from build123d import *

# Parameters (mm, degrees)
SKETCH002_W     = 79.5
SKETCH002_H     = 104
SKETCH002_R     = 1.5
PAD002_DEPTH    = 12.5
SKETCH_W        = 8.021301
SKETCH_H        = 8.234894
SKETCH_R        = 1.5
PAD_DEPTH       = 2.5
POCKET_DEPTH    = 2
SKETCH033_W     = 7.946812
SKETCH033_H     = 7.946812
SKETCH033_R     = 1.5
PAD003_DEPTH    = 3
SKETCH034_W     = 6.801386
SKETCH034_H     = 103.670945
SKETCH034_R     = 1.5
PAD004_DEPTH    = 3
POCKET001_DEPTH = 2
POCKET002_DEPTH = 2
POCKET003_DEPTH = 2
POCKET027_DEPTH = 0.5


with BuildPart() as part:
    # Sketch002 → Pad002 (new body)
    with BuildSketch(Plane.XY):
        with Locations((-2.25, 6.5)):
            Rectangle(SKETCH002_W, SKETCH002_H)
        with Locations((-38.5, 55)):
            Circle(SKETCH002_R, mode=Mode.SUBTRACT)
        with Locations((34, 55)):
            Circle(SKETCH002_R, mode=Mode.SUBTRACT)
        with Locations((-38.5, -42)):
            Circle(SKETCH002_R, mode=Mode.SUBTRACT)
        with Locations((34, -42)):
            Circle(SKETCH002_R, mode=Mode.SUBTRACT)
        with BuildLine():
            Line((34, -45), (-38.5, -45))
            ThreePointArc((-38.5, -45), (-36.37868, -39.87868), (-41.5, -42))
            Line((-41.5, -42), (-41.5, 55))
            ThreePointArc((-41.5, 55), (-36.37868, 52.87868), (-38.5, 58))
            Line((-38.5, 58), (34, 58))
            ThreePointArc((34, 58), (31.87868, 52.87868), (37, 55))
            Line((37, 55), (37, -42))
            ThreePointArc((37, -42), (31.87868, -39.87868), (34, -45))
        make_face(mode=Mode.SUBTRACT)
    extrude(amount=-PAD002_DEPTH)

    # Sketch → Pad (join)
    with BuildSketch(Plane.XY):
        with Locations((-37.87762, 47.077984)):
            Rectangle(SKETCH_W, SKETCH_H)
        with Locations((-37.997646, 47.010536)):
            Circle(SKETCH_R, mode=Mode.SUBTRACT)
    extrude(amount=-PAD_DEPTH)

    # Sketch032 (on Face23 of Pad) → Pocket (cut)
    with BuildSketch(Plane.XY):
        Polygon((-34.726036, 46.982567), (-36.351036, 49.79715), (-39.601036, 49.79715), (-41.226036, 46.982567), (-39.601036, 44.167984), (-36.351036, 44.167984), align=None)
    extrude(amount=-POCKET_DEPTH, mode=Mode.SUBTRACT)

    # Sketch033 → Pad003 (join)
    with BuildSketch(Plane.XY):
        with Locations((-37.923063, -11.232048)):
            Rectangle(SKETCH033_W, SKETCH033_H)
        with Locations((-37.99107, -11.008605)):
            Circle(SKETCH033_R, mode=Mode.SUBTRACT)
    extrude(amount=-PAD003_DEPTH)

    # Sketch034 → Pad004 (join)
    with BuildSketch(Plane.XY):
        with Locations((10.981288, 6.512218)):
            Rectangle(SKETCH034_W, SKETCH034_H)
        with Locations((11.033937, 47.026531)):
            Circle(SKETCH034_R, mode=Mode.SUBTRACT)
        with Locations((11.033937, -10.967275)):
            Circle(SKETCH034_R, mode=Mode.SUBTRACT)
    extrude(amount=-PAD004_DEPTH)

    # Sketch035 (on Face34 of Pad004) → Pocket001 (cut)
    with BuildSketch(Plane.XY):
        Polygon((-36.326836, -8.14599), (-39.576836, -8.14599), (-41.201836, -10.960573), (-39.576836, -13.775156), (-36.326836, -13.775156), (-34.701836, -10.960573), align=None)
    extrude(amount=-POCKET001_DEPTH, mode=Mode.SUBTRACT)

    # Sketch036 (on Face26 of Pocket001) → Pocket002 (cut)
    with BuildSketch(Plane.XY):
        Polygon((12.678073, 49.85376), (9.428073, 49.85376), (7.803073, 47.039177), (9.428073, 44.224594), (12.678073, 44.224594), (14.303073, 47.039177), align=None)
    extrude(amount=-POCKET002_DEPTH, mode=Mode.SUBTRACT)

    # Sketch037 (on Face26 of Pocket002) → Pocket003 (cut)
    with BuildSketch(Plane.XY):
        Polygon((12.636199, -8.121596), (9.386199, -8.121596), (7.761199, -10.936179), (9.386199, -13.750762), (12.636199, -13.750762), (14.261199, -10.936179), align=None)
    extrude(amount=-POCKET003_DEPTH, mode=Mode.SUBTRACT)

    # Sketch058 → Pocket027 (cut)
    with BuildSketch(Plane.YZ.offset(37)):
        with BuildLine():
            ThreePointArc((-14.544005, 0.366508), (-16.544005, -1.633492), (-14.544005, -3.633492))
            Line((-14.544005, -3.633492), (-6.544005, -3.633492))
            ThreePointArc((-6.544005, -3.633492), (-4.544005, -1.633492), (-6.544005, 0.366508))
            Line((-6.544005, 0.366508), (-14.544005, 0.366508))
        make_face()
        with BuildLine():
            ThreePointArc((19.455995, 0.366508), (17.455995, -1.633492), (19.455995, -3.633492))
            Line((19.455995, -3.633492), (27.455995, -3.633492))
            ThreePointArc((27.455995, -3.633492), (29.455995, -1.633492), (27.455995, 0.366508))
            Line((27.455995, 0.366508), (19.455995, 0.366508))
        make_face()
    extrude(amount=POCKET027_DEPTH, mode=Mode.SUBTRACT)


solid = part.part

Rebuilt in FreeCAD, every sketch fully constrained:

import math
import FreeCAD as App
import Part
import Sketcher

V = App.Vector
Q = App.Units.Quantity


def add_polygon(sketch, points):
    """Adds a closed chain of lines whose ends are joined by coincident constraints."""
    first, n = sketch.GeometryCount, len(points)
    for a, b in zip(points, points[1:] + points[:1]):
        sketch.addGeometry(Part.LineSegment(App.Vector(*a, 0), App.Vector(*b, 0)), False)
    for i in range(n):
        sketch.addConstraint(Sketcher.Constraint("Coincident", first + i, 2, first + (i + 1) % n, 1))

doc = App.newDocument("Part")
body = doc.addObject("PartDesign::Body", "Body")

# Sketch on XY plane
sketch1 = body.newObject("Sketcher::SketchObject", "Sketch")
sketch1.AttachmentSupport = (doc.getObject("XY_Plane"), [""])
sketch1.MapMode = "FlatFace"
add_polygon(sketch1, [(-42, 58.5), (-42, -45.5), (37.5, -45.5), (37.5, 58.5)])  # lines 0-3
sketch1.addGeometry(Part.Circle(V(-38.5, -42, 0), V(0, 0, 1), 1.5), False)  # 4
sketch1.addGeometry(Part.Circle(V(34, -42, 0), V(0, 0, 1), 1.5), False)  # 5
sketch1.addGeometry(Part.ArcOfCircle(Part.Circle(V(34, -42, 0), V(0, 0, 1), 3), math.radians(0), math.radians(270)), False)  # 6
sketch1.addGeometry(Part.LineSegment(V(34, -45, 0), V(-38.5, -45, 0)), False)  # 7
sketch1.addGeometry(Part.ArcOfCircle(Part.Circle(V(-38.5, -42, 0), V(0, 0, 1), 3), math.radians(-90), math.radians(180)), False)  # 8
sketch1.addGeometry(Part.LineSegment(V(-41.5, -42, 0), V(-41.5, 55, 0)), False)  # 9
sketch1.addGeometry(Part.ArcOfCircle(Part.Circle(V(-38.5, 55, 0), V(0, 0, 1), 3), math.radians(-180), math.radians(90)), False)  # 10
sketch1.addGeometry(Part.LineSegment(V(-38.5, 58, 0), V(34, 58, 0)), False)  # 11
sketch1.addGeometry(Part.ArcOfCircle(Part.Circle(V(34, 55, 0), V(0, 0, 1), 3), math.radians(90), math.radians(360)), False)  # 12
sketch1.addGeometry(Part.LineSegment(V(37, 55, 0), V(37, -42, 0)), False)  # 13
sketch1.addGeometry(Part.Circle(V(-38.5, 55, 0), V(0, 0, 1), 1.5), False)  # 14
sketch1.addGeometry(Part.Circle(V(34, 55, 0), V(0, 0, 1), 1.5), False)  # 15
sketch1.addConstraint([
    Sketcher.Constraint("Tangent", 6, 2, 7, 1),
    Sketcher.Constraint("Tangent", 7, 2, 8, 1),
    Sketcher.Constraint("Tangent", 8, 2, 9, 1),
    Sketcher.Constraint("Tangent", 9, 2, 10, 1),
    Sketcher.Constraint("Tangent", 10, 2, 11, 1),
    Sketcher.Constraint("Tangent", 11, 2, 12, 1),
    Sketcher.Constraint("Tangent", 12, 2, 13, 1),
    Sketcher.Constraint("Tangent", 13, 2, 6, 1),
    Sketcher.Constraint("Vertical", 0),
    Sketcher.Constraint("Horizontal", 1),
    Sketcher.Constraint("Vertical", 2),
    Sketcher.Constraint("Horizontal", 3),
    Sketcher.Constraint("Horizontal", 7),
    Sketcher.Constraint("Vertical", 9),
    Sketcher.Constraint("Horizontal", 11),
    Sketcher.Constraint("Vertical", 13),
    Sketcher.Constraint("Coincident", 6, 3, 5, 3),
    Sketcher.Constraint("Coincident", 8, 3, 4, 3),
    Sketcher.Constraint("Coincident", 14, 3, 10, 3),
    Sketcher.Constraint("Coincident", 15, 3, 12, 3),
    Sketcher.Constraint("Equal", 4, 5),
    Sketcher.Constraint("Equal", 6, 8),
    Sketcher.Constraint("Equal", 8, 10),
    Sketcher.Constraint("Equal", 10, 12),
    Sketcher.Constraint("Equal", 5, 14),
    Sketcher.Constraint("Equal", 14, 15),
    Sketcher.Constraint("Diameter", 4, 3.0),
    Sketcher.Constraint("Radius", 6, 3.0),
    Sketcher.Constraint("DistanceY", 0, 2, 0, 1, 104.0),
    Sketcher.Constraint("DistanceY", 9, 1, 9, 2, 97.0),
    Sketcher.Constraint("DistanceX", 1, 1, 1, 2, 79.5),
    Sketcher.Constraint("DistanceX", 7, 2, 7, 1, 72.5),
    Sketcher.Constraint("DistanceY", 4, 3, -1, 1, 42.0),
    Sketcher.Constraint("DistanceX", -1, 1, 5, 3, 34.0),
    Sketcher.Constraint("DistanceX", 0, 2, -1, 1, 42.0),
    Sketcher.Constraint("DistanceY", 0, 2, -1, 1, 45.5),
])
pad1 = body.newObject("PartDesign::Pad", "Pad")
pad1.Profile = sketch1
pad1.Length = 12.5
pad1.Reversed = True

# Sketch on XY plane
sketch2 = body.newObject("Sketcher::SketchObject", "Sketch001")
sketch2.AttachmentSupport = (doc.getObject("XY_Plane"), [""])
sketch2.MapMode = "FlatFace"
add_polygon(sketch2, [(-41.9, 51.2), (-41.9, 43), (-33.9, 43), (-33.9, 51.2)])  # lines 0-3
sketch2.addGeometry(Part.Circle(V(-38, 47, 0), V(0, 0, 1), 1.5), False)  # 4
sketch2.addConstraint([
    Sketcher.Constraint("Vertical", 0),
    Sketcher.Constraint("Horizontal", 1),
    Sketcher.Constraint("Vertical", 2),
    Sketcher.Constraint("Horizontal", 3),
    Sketcher.Constraint("Diameter", 4, 3.0),
    Sketcher.Constraint("DistanceY", 0, 2, 4, 3, 4.049999),
    Sketcher.Constraint("DistanceX", 1, 1, 1, 2, 8.021301),
    Sketcher.Constraint("DistanceY", 0, 2, 0, 1, 8.234894),
    Sketcher.Constraint("DistanceX", 0, 2, -1, 1, 41.88827),
    Sketcher.Constraint("DistanceY", -1, 1, 2, 2, 51.195431),
    Sketcher.Constraint("DistanceX", 4, 3, -1, 1, 37.997646),
])
pad2 = body.newObject("PartDesign::Pad", "Pad001")
pad2.Profile = sketch2
pad2.Length = 2.5
pad2.Reversed = True

# Sketch on XY plane
sketch3 = body.newObject("Sketcher::SketchObject", "Sketch002")
sketch3.AttachmentSupport = (doc.getObject("XY_Plane"), [""])
sketch3.MapMode = "FlatFace"
add_polygon(sketch3, [(-34.7, 47), (-36.4, 49.8), (-39.6, 49.8), (-41.2, 47), (-39.6, 44.2), (-36.4, 44.2)])  # lines 0-5
sketch3.addConstraint([
    Sketcher.Constraint("Horizontal", 1),
    Sketcher.Constraint("Horizontal", 4),
    Sketcher.Constraint("Parallel", 0, 3),
    Sketcher.Constraint("Parallel", 2, 5),
    Sketcher.Constraint("Horizontal", 2, 2, 5, 2),
    Sketcher.Constraint("Vertical", 1, 2, 3, 2),
    Sketcher.Constraint("Vertical", 0, 2, 4, 2),
    Sketcher.Constraint("Angle", 0, Q("119.999996 deg")),
    Sketcher.Constraint("DistanceX", 1, 2, 1, 1, 3.25),
    Sketcher.Constraint("DistanceX", 2, 2, 5, 2, 6.5),
    Sketcher.Constraint("DistanceY", -1, 1, 0, 2, 49.79715),
    Sketcher.Constraint("DistanceX", 0, 2, -1, 1, 36.351036),
])
pocket1 = body.newObject("PartDesign::Pocket", "Pocket")
pocket1.Profile = sketch3
pocket1.Length = 2

# Sketch on XY plane
sketch4 = body.newObject("Sketcher::SketchObject", "Sketch003")
sketch4.AttachmentSupport = (doc.getObject("XY_Plane"), [""])
sketch4.MapMode = "FlatFace"
add_polygon(sketch4, [(-41.9, -7.3), (-41.9, -15.2), (-33.9, -15.2), (-33.9, -7.3)])  # lines 0-3
sketch4.addGeometry(Part.Circle(V(-38, -11, 0), V(0, 0, 1), 1.5), False)  # 4
sketch4.addConstraint([
    Sketcher.Constraint("Vertical", 0),
    Sketcher.Constraint("Horizontal", 1),
    Sketcher.Constraint("Vertical", 2),
    Sketcher.Constraint("Horizontal", 3),
    Sketcher.Constraint("Equal", 3, 0),
    Sketcher.Constraint("Diameter", 4, 3.0),
    Sketcher.Constraint("DistanceY", 0, 2, 0, 1, 7.946812),
    Sketcher.Constraint("DistanceX", 0, 2, 4, 3, 3.905399),
    Sketcher.Constraint("DistanceX", 4, 3, -1, 1, 37.99107),
    Sketcher.Constraint("DistanceY", 0, 2, 4, 3, 4.196849),
    Sketcher.Constraint("DistanceY", 4, 3, -1, 1, 11.008605),
])
pad3 = body.newObject("PartDesign::Pad", "Pad002")
pad3.Profile = sketch4
pad3.Length = 3
pad3.Reversed = True

# Sketch on XY plane
sketch5 = body.newObject("Sketcher::SketchObject", "Sketch004")
sketch5.AttachmentSupport = (doc.getObject("XY_Plane"), [""])
sketch5.MapMode = "FlatFace"
add_polygon(sketch5, [(7.6, 58.3), (7.6, -45.3), (14.4, -45.3), (14.4, 58.3)])  # lines 0-3
sketch5.addGeometry(Part.Circle(V(11, -11, 0), V(0, 0, 1), 1.5), False)  # 4
sketch5.addGeometry(Part.Circle(V(11, 47, 0), V(0, 0, 1), 1.5), False)  # 5
sketch5.addConstraint([
    Sketcher.Constraint("Vertical", 0),
    Sketcher.Constraint("Horizontal", 1),
    Sketcher.Constraint("Vertical", 2),
    Sketcher.Constraint("Horizontal", 3),
    Sketcher.Constraint("Equal", 4, 5),
    Sketcher.Constraint("Vertical", 4, 3, 5, 3),
    Sketcher.Constraint("Diameter", 4, 3.0),
    Sketcher.Constraint("DistanceX", 1, 1, 1, 2, 6.801386),
    Sketcher.Constraint("DistanceY", 0, 2, 0, 1, 103.670945),
    Sketcher.Constraint("DistanceY", -1, 1, 5, 3, 47.026531),
    Sketcher.Constraint("DistanceX", -1, 1, 1, 2, 14.381981),
    Sketcher.Constraint("DistanceY", -1, 1, 2, 2, 58.34769),
    Sketcher.Constraint("DistanceY", 0, 2, 4, 3, 34.355979),
    Sketcher.Constraint("DistanceX", -1, 1, 4, 3, 11.033937),
])
pad4 = body.newObject("PartDesign::Pad", "Pad003")
pad4.Profile = sketch5
pad4.Length = 3
pad4.Reversed = True

# Sketch on XY plane
sketch6 = body.newObject("Sketcher::SketchObject", "Sketch005")
sketch6.AttachmentSupport = (doc.getObject("XY_Plane"), [""])
sketch6.MapMode = "FlatFace"
add_polygon(sketch6, [(-36.3, -8.1), (-39.6, -8.1), (-41.2, -11), (-39.6, -13.8), (-36.3, -13.8), (-34.7, -11)])  # lines 0-5
sketch6.addConstraint([
    Sketcher.Constraint("Horizontal", 0),
    Sketcher.Constraint("Horizontal", 3),
    Sketcher.Constraint("Parallel", 1, 4),
    Sketcher.Constraint("Parallel", 2, 5),
    Sketcher.Constraint("Horizontal", 1, 2, 4, 2),
    Sketcher.Constraint("Vertical", 0, 2, 2, 2),
    Sketcher.Constraint("Vertical", 3, 2, 5, 2),
    Sketcher.Constraint("Angle", 1, Q("-119.999996 deg")),
    Sketcher.Constraint("DistanceX", 0, 2, 0, 1, 3.25),
    Sketcher.Constraint("DistanceX", 1, 2, 4, 2, 6.5),
    Sketcher.Constraint("DistanceY", 0, 2, -1, 1, 8.14599),
    Sketcher.Constraint("DistanceX", 0, 2, -1, 1, 39.576836),
])
pocket2 = body.newObject("PartDesign::Pocket", "Pocket001")
pocket2.Profile = sketch6
pocket2.Length = 2

# Sketch on XY plane
sketch7 = body.newObject("Sketcher::SketchObject", "Sketch006")
sketch7.AttachmentSupport = (doc.getObject("XY_Plane"), [""])
sketch7.MapMode = "FlatFace"
add_polygon(sketch7, [(12.7, 49.9), (9.4, 49.9), (7.8, 47), (9.4, 44.2), (12.7, 44.2), (14.3, 47)])  # lines 0-5
sketch7.addConstraint([
    Sketcher.Constraint("Horizontal", 0),
    Sketcher.Constraint("Horizontal", 3),
    Sketcher.Constraint("Parallel", 1, 4),
    Sketcher.Constraint("Parallel", 2, 5),
    Sketcher.Constraint("Horizontal", 1, 2, 4, 2),
    Sketcher.Constraint("Vertical", 0, 2, 2, 2),
    Sketcher.Constraint("Vertical", 3, 2, 5, 2),
    Sketcher.Constraint("Angle", 1, Q("-119.999996 deg")),
    Sketcher.Constraint("DistanceX", 0, 2, 0, 1, 3.25),
    Sketcher.Constraint("DistanceX", 1, 2, 4, 2, 6.5),
    Sketcher.Constraint("DistanceY", -1, 1, 0, 2, 49.85376),
    Sketcher.Constraint("DistanceX", -1, 1, 0, 2, 9.428073),
])
pocket3 = body.newObject("PartDesign::Pocket", "Pocket002")
pocket3.Profile = sketch7
pocket3.Length = 2

# Sketch on XY plane
sketch8 = body.newObject("Sketcher::SketchObject", "Sketch007")
sketch8.AttachmentSupport = (doc.getObject("XY_Plane"), [""])
sketch8.MapMode = "FlatFace"
add_polygon(sketch8, [(12.6, -8.1), (9.4, -8.1), (7.8, -10.9), (9.4, -13.8), (12.6, -13.8), (14.3, -10.9)])  # lines 0-5
sketch8.addConstraint([
    Sketcher.Constraint("Horizontal", 0),
    Sketcher.Constraint("Horizontal", 3),
    Sketcher.Constraint("Parallel", 1, 4),
    Sketcher.Constraint("Parallel", 2, 5),
    Sketcher.Constraint("Horizontal", 1, 2, 4, 2),
    Sketcher.Constraint("Vertical", 0, 2, 2, 2),
    Sketcher.Constraint("Vertical", 3, 2, 5, 2),
    Sketcher.Constraint("Angle", 1, Q("-119.999996 deg")),
    Sketcher.Constraint("DistanceX", 0, 2, 0, 1, 3.25),
    Sketcher.Constraint("DistanceX", 1, 2, 4, 2, 6.5),
    Sketcher.Constraint("DistanceX", -1, 1, 0, 2, 9.386199),
    Sketcher.Constraint("DistanceY", 1, 2, -1, 1, 10.936179),
])
pocket4 = body.newObject("PartDesign::Pocket", "Pocket003")
pocket4.Profile = sketch8
pocket4.Length = 2

# Sketch on YZ plane
sketch9 = body.newObject("Sketcher::SketchObject", "Sketch008")
sketch9.AttachmentSupport = (doc.getObject("YZ_Plane"), [""])
sketch9.MapMode = "FlatFace"
sketch9.AttachmentOffset = App.Placement(V(0, 0, 37), App.Rotation())
sketch9.addGeometry([
    Part.ArcOfCircle(Part.Circle(V(-14.5, -1.6, 0), V(0, 0, 1), 2), math.radians(90), math.radians(270)),  # 0
    Part.LineSegment(V(-14.5, -3.6, 0), V(-6.5, -3.6, 0)),  # 1
    Part.ArcOfCircle(Part.Circle(V(-6.5, -1.6, 0), V(0, 0, 1), 2), math.radians(-90), math.radians(90)),  # 2
    Part.LineSegment(V(-6.5, 0.4, 0), V(-14.5, 0.4, 0)),  # 3
    Part.ArcOfCircle(Part.Circle(V(19.5, -1.6, 0), V(0, 0, 1), 2), math.radians(90), math.radians(270)),  # 4
    Part.LineSegment(V(19.5, -3.6, 0), V(27.5, -3.6, 0)),  # 5
    Part.ArcOfCircle(Part.Circle(V(27.5, -1.6, 0), V(0, 0, 1), 2), math.radians(-90), math.radians(90)),  # 6
    Part.LineSegment(V(27.5, 0.4, 0), V(19.5, 0.4, 0)),  # 7
], False)
sketch9.addConstraint([
    Sketcher.Constraint("Tangent", 0, 2, 1, 1),
    Sketcher.Constraint("Tangent", 1, 2, 2, 1),
    Sketcher.Constraint("Tangent", 2, 2, 3, 1),
    Sketcher.Constraint("Tangent", 3, 2, 0, 1),
    Sketcher.Constraint("Tangent", 4, 2, 5, 1),
    Sketcher.Constraint("Tangent", 5, 2, 6, 1),
    Sketcher.Constraint("Tangent", 6, 2, 7, 1),
    Sketcher.Constraint("Tangent", 7, 2, 4, 1),
    Sketcher.Constraint("Horizontal", 1),
    Sketcher.Constraint("Horizontal", 3),
    Sketcher.Constraint("Horizontal", 5),
    Sketcher.Constraint("Horizontal", 7),
    Sketcher.Constraint("Equal", 2, 4),
    Sketcher.Constraint("Horizontal", 2, 3, 4, 3),
    Sketcher.Constraint("Equal", 3, 5),
    Sketcher.Constraint("Radius", 0, 2.0),
    Sketcher.Constraint("DistanceX", 1, 1, 1, 2, 8.0),
    Sketcher.Constraint("DistanceX", 2, 3, 4, 3, 26.0),
    Sketcher.Constraint("DistanceY", 0, 3, -1, 1, 1.633492),
    Sketcher.Constraint("DistanceX", 0, 3, -1, 1, 14.544005),
])
pocket5 = body.newObject("PartDesign::Pocket", "Pocket004")
pocket5.Profile = sketch9
pocket5.Length = 0.5
pocket5.Reversed = True

doc.recompute()
